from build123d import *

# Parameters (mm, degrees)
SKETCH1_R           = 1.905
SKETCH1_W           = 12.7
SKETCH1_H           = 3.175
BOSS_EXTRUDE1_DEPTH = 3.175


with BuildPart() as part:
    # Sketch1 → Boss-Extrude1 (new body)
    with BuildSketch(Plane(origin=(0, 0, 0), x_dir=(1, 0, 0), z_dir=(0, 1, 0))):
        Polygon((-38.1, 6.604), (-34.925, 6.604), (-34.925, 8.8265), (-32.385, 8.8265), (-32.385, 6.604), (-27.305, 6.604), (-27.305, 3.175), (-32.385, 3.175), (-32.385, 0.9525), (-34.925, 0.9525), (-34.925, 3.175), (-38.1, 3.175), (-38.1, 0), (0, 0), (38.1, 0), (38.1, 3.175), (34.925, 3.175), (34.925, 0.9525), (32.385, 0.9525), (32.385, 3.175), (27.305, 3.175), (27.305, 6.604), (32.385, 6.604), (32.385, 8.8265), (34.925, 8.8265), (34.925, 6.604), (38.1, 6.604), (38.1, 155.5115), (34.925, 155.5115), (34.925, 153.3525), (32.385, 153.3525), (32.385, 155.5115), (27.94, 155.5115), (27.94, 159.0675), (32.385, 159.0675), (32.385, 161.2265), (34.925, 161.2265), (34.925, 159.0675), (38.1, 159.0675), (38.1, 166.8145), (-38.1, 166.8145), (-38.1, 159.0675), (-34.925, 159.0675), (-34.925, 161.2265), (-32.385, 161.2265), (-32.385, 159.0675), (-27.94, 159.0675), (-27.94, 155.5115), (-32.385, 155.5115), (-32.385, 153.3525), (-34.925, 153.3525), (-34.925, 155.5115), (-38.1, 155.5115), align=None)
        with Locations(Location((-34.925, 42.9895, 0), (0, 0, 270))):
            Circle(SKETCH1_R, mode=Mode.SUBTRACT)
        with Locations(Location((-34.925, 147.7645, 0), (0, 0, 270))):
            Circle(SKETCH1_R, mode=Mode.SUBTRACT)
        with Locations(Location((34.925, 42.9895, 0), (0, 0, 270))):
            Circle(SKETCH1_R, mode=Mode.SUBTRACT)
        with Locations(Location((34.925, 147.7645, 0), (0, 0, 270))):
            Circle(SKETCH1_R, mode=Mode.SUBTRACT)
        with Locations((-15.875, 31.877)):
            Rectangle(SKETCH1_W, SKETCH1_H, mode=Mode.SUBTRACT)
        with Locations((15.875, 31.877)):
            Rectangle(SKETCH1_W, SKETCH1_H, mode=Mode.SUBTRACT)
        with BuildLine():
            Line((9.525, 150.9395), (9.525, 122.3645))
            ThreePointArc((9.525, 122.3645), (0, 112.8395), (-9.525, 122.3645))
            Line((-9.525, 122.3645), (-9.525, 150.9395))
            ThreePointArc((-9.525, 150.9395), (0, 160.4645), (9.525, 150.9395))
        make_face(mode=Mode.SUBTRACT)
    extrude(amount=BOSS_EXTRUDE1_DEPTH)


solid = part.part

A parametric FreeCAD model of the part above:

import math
import FreeCAD as App
import Part
import Sketcher

V = App.Vector
Q = App.Units.Quantity


def add_polygon(sketch, points):
    """Adds a closed chain of lines whose ends are joined by coincident constraints."""
    first, n = sketch.GeometryCount, len(points)
    for a, b in zip(points, points[1:] + points[:1]):
        sketch.addGeometry(Part.LineSegment(App.Vector(*a, 0), App.Vector(*b, 0)), False)
    for i in range(n):
        sketch.addConstraint(Sketcher.Constraint("Coincident", first + i, 2, first + (i + 1) % n, 1))

doc = App.newDocument("Part")
body = doc.addObject("PartDesign::Body", "Body")

sketch1 = body.newObject("Sketcher::SketchObject", "Sketch")
sketch1.AttachmentSupport = (doc.getObject("XZ_Plane"), [""])
sketch1.MapMode = "FlatFace"
add_polygon(sketch1, [(-38.1, -6.6), (-34.9, -6.6), (-34.9, -8.8), (-32.4, -8.8), (-32.4, -6.6), (-27.3, -6.6), (-27.3, -3.2), (-32.4, -3.2), (-32.4, -1), (-34.9, -1), (-34.9, -3.2), (-38.1, -3.2), (-38.1, 0), (38.1, 0), (38.1, -3.2), (34.9, -3.2), (34.9, -1), (32.4, -1), (32.4, -3.2), (27.3, -3.2), (27.3, -6.6), (32.4, -6.6), (32.4, -8.8), (34.9, -8.8), (34.9, -6.6), (38.1, -6.6), (38.1, -155.5), (34.9, -155.5), (34.9, -153.4), (32.4, -153.4), (32.4, -155.5), (27.9, -155.5), (27.9, -159.1), (32.4, -159.1), (32.4, -161.2), (34.9, -161.2), (34.9, -159.1), (38.1, -159.1), (38.1, -166.8), (-38.1, -166.8), (-38.1, -159.1), (-34.9, -159.1), (-34.9, -161.2), (-32.4, -161.2), (-32.4, -159.1), (-27.9, -159.1), (-27.9, -155.5), (-32.4, -155.5), (-32.4, -153.4), (-34.9, -153.4), (-34.9, -155.5), (-38.1, -155.5)])
sketch1.addGeometry(Part.Circle(V(-34.9, -43, 0), V(0, 0, 1), 1.9), False)
add_polygon(sketch1, [(-9.5, -30.3), (-22.2, -30.3), (-22.2, -33.5), (-9.5, -33.5)])
add_polygon(sketch1, [(22.2, -30.3), (9.5, -30.3), (9.5, -33.5), (22.2, -33.5)])
sketch1.addGeometry(Part.Circle(V(34.9, -43, 0), V(0, 0, 1), 1.9), False)
sketch1.addGeometry(Part.Circle(V(-34.9, -147.8, 0), V(0, 0, 1), 1.9), False)
sketch1.addGeometry(Part.ArcOfCircle(Part.Circle(V(0, -150.9, 0), V(0, 0, 1), 9.5), math.radians(180), math.radians(360)), False)
sketch1.addGeometry(Part.LineSegment(V(9.5, -150.9, 0), V(9.5, -122.4, 0)), False)
sketch1.addGeometry(Part.ArcOfCircle(Part.Circle(V(0, -122.4, 0), V(0, 0, 1), 9.5), math.radians(0), math.radians(180)), False)
sketch1.addGeometry(Part.LineSegment(V(-9.5, -122.4, 0), V(-9.5, -150.9, 0)), False)
sketch1.addGeometry(Part.Circle(V(34.9, -147.8, 0), V(0, 0, 1), 1.9), False)
sketch1.addConstraint([
    Sketcher.Constraint("Tangent", 63, 2, 64, 1),
    Sketcher.Constraint("Tangent", 64, 2, 65, 1),
    Sketcher.Constraint("Tangent", 65, 2, 66, 1),
    Sketcher.Constraint("Tangent", 66, 2, 63, 1),
    Sketcher.Constraint("Horizontal", 0),
    Sketcher.Constraint("Vertical", 1),
    Sketcher.Constraint("Horizontal", 2),
    Sketcher.Constraint("Vertical", 3),
    Sketcher.Constraint("Horizontal", 4),
    Sketcher.Constraint("Vertical", 5),
    Sketcher.Constraint("Horizontal", 6),
    Sketcher.Constraint("Vertical", 7),
    Sketcher.Constraint("Horizontal", 8),
    Sketcher.Constraint("Vertical", 9),
    Sketcher.Constraint("Horizontal", 10),
    Sketcher.Constraint("Vertical", 11),
    Sketcher.Constraint("Horizontal", 12),
    Sketcher.Constraint("Vertical", 13),
    Sketcher.Constraint("Horizontal", 14),
    Sketcher.Constraint("Vertical", 15),
    Sketcher.Constraint("Horizontal", 16),
    Sketcher.Constraint("Vertical", 17),
    Sketcher.Constraint("Horizontal", 18),
    Sketcher.Constraint("Vertical", 19),
    Sketcher.Constraint("Horizontal", 20),
    Sketcher.Constraint("Vertical", 21),
    Sketcher.Constraint("Horizontal", 22),
    Sketcher.Constraint("Vertical", 23),
    Sketcher.Constraint("Horizontal", 24),
    Sketcher.Constraint("Vertical", 25),
    Sketcher.Constraint("Horizontal", 26),
    Sketcher.Constraint("Vertical", 27),
    Sketcher.Constraint("Horizontal", 28),
    Sketcher.Constraint("Vertical", 29),
    Sketcher.Constraint("Horizontal", 30),
    Sketcher.Constraint("Vertical", 31),
    Sketcher.Constraint("Horizontal", 32),
    Sketcher.Constraint("Vertical", 33),
    Sketcher.Constraint("Horizontal", 34),
    Sketcher.Constraint("Vertical", 35),
    Sketcher.Constraint("Horizontal", 36),
    Sketcher.Constraint("Vertical", 37),
    Sketcher.Constraint("Horizontal", 38),
    Sketcher.Constraint("Vertical", 39),
    Sketcher.Constraint("Horizontal", 40),
    Sketcher.Constraint("Vertical", 41),
    Sketcher.Constraint("Horizontal", 42),
    Sketcher.Constraint("Vertical", 43),
    Sketcher.Constraint("Horizontal", 44),
    Sketcher.Constraint("Vertical", 45),
    Sketcher.Constraint("Horizontal", 46),
    Sketcher.Constraint("Vertical", 47),
    Sketcher.Constraint("Horizontal", 48),
    Sketcher.Constraint("Vertical", 49),
    Sketcher.Constraint("Horizontal", 50),
    Sketcher.Constraint("Vertical", 51),
    Sketcher.Constraint("Horizontal", 53),
    Sketcher.Constraint("Vertical", 54),
    Sketcher.Constraint("Horizontal", 55),
    Sketcher.Constraint("Vertical", 56),
    Sketcher.Constraint("Horizontal", 57),
    Sketcher.Constraint("Vertical", 58),
    Sketcher.Constraint("Horizontal", 59),
    Sketcher.Constraint("Vertical", 60),
    Sketcher.Constraint("Vertical", 64),
    Sketcher.Constraint("Vertical", 66),
    Sketcher.Constraint("Equal", 52, 61),
    Sketcher.Constraint("Equal", 61, 62),
    Sketcher.Constraint("Equal", 62, 67),
    Sketcher.Constraint("Symmetric", 11, 2, 12, 2, -1, 1),
    Sketcher.Constraint("Symmetric", 52, 3, 61, 3, -2),
    Sketcher.Constraint("Symmetric", 62, 3, 67, 3, -2),
    Sketcher.Constraint("Symmetric", 9, 2, 14, 2, -2),
    Sketcher.Constraint("Symmetric", 7, 2, 16, 2, -2),
    Sketcher.Constraint("Symmetric", 5, 2, 18, 2, -2),
    Sketcher.Constraint("Symmetric", 3, 2, 20, 2, -2),
    Sketcher.Constraint("Symmetric", 1, 2, 22, 2, -2),
    Sketcher.Constraint("Symmetric", 36, 2, 39, 2, -2),
    Sketcher.Constraint("Symmetric", 34, 2, 41, 2, -2),
    Sketcher.Constraint("Symmetric", 32, 2, 43, 2, -2),
    Sketcher.Constraint("Symmetric", 30, 2, 45, 2, -2),
    Sketcher.Constraint("Symmetric", 28, 2, 47, 2, -2),
    Sketcher.Constraint("Symmetric", 26, 2, 49, 2, -2),
    Sketcher.Constraint("Symmetric", 24, 2, 51, 2, -2),
    Sketcher.Constraint("Symmetric", 56, 2, 57, 2, -2),
    Sketcher.Constraint("Symmetric", 54, 2, 59, 2, -2),
    Sketcher.Constraint("PointOnObject", 63, 3, -2),
    Sketcher.Constraint("Horizontal", 0, 2, 3, 2),
    Sketcher.Constraint("Horizontal", 6, 2, 9, 2),
    Sketcher.Constraint("Horizontal", 26, 2, 29, 2),
    Sketcher.Constraint("Horizontal", 32, 2, 35, 2),
    Sketcher.Constraint("Vertical", 52, 3, 62, 3),
    Sketcher.Constraint("Vertical", 62, 3, 0, 2),
    Sketcher.Constraint("Vertical", 3, 2, 6, 2),
    Sketcher.Constraint("Vertical", 1, 2, 8, 2),
    Sketcher.Constraint("Vertical", 13, 2, 24, 2),
    Sketcher.Constraint("Vertical", 23, 2, 26, 2),
    Sketcher.Constraint("Vertical", 21, 2, 28, 2),
    Sketcher.Constraint("Vertical", 29, 2, 32, 2),
    Sketcher.Constraint("Vertical", 27, 2, 34, 2),
    Sketcher.Constraint("Vertical", 25, 2, 36, 2),
    Sketcher.Constraint("Vertical", 58, 2, 63, 2),
    Sketcher.Constraint("Equal", 3, 7),
    Sketcher.Constraint("Equal", 50, 11),
    Sketcher.Constraint("Equal", 29, 33),
    Sketcher.Constraint("Equal", 13, 54),
    Sketcher.Constraint("Diameter", 52, Q("0.15 in")),
    Sketcher.Constraint("DistanceX", 12, 1, 12, 2, Q("3 in")),
    Sketcher.Constraint("DistanceX", 2, 1, 2, 2, Q("0.1 in")),
    Sketcher.Constraint("DistanceX", 4, 1, 4, 2, Q("0.2 in")),
    Sketcher.Constraint("DistanceX", 53, 2, 53, 1, Q("0.5 in")),
    Sketcher.Constraint("Radius", 63, Q("0.375 in")),
    Sketcher.Constraint("DistanceY", 31, 2, 31, 1, Q("0.14 in")),
    Sketcher.Constraint("DistanceX", -1, 1, 30, 2, Q("1.1 in")),
    Sketcher.Constraint("DistanceX", 0, 1, 0, 2, Q("0.125 in")),
    Sketcher.Constraint("DistanceY", 5, 1, 5, 2, Q("0.135 in")),
    Sketcher.Constraint("DistanceY", 27, 1, 27, 2, Q("0.085 in")),
    Sketcher.Constraint("DistanceY", 37, 2, 37, 1, Q("0.305 in")),
    Sketcher.Constraint("DistanceY", 64, 1, 64, 2, Q("1.125 in")),
    Sketcher.Constraint("DistanceY", 1, 2, 1, 1, Q("0.0875 in")),
    Sketcher.Constraint("DistanceY", 25, 2, 25, 1, Q("5.8625 in")),
    Sketcher.Constraint("DistanceY", 52, 3, -1, 1, Q("1.6925 in")),
    Sketcher.Constraint("DistanceY", 62, 3, -1, 1, Q("5.8175 in")),
    Sketcher.Constraint("DistanceY", 63, 3, -1, 1, Q("5.9425 in")),
    Sketcher.Constraint("DistanceY", 53, 2, -1, 1, Q("1.1925 in")),
])
pad1 = body.newObject("PartDesign::Pad", "Pad")
pad1.Profile = sketch1
pad1.Length = Q("0.125 in")
pad1.Reversed = True

doc.recompute()
